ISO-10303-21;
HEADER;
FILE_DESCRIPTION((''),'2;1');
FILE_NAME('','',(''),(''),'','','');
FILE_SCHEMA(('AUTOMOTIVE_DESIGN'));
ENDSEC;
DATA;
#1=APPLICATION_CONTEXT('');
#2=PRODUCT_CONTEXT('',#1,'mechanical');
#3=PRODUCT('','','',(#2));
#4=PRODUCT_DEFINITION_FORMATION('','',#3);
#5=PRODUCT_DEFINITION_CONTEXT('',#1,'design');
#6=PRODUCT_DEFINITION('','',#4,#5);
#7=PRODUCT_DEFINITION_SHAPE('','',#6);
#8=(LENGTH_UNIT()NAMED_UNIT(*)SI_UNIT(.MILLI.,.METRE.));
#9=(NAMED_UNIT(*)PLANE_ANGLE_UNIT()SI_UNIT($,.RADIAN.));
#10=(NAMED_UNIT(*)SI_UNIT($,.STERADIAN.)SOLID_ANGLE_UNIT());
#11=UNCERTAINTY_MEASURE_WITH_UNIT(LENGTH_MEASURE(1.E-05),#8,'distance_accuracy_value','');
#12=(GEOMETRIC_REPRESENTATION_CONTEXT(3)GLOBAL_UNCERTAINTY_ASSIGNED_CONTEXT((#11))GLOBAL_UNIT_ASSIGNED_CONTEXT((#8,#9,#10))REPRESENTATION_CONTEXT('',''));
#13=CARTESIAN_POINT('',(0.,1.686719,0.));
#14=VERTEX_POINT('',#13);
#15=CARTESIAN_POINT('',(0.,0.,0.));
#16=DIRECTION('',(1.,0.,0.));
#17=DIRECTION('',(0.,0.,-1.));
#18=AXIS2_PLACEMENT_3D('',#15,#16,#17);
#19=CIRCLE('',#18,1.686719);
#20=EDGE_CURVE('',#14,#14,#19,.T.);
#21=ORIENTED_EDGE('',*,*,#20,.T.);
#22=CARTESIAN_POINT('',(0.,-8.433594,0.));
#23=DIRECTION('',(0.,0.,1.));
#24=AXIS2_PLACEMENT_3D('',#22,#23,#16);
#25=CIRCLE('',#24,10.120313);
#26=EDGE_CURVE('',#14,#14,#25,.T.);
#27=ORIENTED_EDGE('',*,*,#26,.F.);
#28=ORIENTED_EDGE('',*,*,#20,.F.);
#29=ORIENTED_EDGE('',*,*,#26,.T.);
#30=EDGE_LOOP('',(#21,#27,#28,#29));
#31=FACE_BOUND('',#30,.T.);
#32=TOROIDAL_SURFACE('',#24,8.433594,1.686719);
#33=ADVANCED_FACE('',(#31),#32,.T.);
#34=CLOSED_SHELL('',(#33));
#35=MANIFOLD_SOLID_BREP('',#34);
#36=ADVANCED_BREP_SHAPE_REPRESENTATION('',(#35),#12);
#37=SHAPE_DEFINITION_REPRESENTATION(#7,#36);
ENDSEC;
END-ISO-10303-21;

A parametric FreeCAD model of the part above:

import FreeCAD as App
import Part
import Sketcher
Q = App.Units.Quantity

doc = App.newDocument("Part")
body = doc.addObject("PartDesign::Body", "Body")

# Sketch on YZ plane
sketch1 = body.newObject("Sketcher::SketchObject", "Sketch")
sketch1.AttachmentSupport = (doc.getObject("YZ_Plane"), [""])
sketch1.MapMode = "FlatFace"
sketch1.addGeometry(Part.Circle(App.Vector(0, 0, 0), App.Vector(0, 0, 1), 1.686719), False)
sketch1.addConstraint([
    Sketcher.Constraint("Coincident", 0, 3, -1, 1),
    Sketcher.Constraint("Diameter", 0, Q("3.373438 mm")),
])

# Sketch on XY plane
sketch2 = body.newObject("Sketcher::SketchObject", "Sketch001")
sketch2.AttachmentSupport = (doc.getObject("XY_Plane"), [""])
sketch2.MapMode = "FlatFace"
sketch2.addGeometry(Part.Circle(App.Vector(0, -8.433594, 0), App.Vector(0, 0, 1), 8.433594), False)
sketch2.addConstraint([
    Sketcher.Constraint("PointOnObject", 0, 3, -2),
    Sketcher.Constraint("Diameter", 0, Q("16.867188 mm")),
    Sketcher.Constraint("DistanceY", 0, 3, -1, 1, Q("8.433594 mm")),
])
doc.recompute()

additivepipe = body.newObject("PartDesign::AdditivePipe", "AdditivePipe")
additivepipe.Profile = sketch1
additivepipe.Spine = (sketch2, ["Edge1"])

doc.recompute()
